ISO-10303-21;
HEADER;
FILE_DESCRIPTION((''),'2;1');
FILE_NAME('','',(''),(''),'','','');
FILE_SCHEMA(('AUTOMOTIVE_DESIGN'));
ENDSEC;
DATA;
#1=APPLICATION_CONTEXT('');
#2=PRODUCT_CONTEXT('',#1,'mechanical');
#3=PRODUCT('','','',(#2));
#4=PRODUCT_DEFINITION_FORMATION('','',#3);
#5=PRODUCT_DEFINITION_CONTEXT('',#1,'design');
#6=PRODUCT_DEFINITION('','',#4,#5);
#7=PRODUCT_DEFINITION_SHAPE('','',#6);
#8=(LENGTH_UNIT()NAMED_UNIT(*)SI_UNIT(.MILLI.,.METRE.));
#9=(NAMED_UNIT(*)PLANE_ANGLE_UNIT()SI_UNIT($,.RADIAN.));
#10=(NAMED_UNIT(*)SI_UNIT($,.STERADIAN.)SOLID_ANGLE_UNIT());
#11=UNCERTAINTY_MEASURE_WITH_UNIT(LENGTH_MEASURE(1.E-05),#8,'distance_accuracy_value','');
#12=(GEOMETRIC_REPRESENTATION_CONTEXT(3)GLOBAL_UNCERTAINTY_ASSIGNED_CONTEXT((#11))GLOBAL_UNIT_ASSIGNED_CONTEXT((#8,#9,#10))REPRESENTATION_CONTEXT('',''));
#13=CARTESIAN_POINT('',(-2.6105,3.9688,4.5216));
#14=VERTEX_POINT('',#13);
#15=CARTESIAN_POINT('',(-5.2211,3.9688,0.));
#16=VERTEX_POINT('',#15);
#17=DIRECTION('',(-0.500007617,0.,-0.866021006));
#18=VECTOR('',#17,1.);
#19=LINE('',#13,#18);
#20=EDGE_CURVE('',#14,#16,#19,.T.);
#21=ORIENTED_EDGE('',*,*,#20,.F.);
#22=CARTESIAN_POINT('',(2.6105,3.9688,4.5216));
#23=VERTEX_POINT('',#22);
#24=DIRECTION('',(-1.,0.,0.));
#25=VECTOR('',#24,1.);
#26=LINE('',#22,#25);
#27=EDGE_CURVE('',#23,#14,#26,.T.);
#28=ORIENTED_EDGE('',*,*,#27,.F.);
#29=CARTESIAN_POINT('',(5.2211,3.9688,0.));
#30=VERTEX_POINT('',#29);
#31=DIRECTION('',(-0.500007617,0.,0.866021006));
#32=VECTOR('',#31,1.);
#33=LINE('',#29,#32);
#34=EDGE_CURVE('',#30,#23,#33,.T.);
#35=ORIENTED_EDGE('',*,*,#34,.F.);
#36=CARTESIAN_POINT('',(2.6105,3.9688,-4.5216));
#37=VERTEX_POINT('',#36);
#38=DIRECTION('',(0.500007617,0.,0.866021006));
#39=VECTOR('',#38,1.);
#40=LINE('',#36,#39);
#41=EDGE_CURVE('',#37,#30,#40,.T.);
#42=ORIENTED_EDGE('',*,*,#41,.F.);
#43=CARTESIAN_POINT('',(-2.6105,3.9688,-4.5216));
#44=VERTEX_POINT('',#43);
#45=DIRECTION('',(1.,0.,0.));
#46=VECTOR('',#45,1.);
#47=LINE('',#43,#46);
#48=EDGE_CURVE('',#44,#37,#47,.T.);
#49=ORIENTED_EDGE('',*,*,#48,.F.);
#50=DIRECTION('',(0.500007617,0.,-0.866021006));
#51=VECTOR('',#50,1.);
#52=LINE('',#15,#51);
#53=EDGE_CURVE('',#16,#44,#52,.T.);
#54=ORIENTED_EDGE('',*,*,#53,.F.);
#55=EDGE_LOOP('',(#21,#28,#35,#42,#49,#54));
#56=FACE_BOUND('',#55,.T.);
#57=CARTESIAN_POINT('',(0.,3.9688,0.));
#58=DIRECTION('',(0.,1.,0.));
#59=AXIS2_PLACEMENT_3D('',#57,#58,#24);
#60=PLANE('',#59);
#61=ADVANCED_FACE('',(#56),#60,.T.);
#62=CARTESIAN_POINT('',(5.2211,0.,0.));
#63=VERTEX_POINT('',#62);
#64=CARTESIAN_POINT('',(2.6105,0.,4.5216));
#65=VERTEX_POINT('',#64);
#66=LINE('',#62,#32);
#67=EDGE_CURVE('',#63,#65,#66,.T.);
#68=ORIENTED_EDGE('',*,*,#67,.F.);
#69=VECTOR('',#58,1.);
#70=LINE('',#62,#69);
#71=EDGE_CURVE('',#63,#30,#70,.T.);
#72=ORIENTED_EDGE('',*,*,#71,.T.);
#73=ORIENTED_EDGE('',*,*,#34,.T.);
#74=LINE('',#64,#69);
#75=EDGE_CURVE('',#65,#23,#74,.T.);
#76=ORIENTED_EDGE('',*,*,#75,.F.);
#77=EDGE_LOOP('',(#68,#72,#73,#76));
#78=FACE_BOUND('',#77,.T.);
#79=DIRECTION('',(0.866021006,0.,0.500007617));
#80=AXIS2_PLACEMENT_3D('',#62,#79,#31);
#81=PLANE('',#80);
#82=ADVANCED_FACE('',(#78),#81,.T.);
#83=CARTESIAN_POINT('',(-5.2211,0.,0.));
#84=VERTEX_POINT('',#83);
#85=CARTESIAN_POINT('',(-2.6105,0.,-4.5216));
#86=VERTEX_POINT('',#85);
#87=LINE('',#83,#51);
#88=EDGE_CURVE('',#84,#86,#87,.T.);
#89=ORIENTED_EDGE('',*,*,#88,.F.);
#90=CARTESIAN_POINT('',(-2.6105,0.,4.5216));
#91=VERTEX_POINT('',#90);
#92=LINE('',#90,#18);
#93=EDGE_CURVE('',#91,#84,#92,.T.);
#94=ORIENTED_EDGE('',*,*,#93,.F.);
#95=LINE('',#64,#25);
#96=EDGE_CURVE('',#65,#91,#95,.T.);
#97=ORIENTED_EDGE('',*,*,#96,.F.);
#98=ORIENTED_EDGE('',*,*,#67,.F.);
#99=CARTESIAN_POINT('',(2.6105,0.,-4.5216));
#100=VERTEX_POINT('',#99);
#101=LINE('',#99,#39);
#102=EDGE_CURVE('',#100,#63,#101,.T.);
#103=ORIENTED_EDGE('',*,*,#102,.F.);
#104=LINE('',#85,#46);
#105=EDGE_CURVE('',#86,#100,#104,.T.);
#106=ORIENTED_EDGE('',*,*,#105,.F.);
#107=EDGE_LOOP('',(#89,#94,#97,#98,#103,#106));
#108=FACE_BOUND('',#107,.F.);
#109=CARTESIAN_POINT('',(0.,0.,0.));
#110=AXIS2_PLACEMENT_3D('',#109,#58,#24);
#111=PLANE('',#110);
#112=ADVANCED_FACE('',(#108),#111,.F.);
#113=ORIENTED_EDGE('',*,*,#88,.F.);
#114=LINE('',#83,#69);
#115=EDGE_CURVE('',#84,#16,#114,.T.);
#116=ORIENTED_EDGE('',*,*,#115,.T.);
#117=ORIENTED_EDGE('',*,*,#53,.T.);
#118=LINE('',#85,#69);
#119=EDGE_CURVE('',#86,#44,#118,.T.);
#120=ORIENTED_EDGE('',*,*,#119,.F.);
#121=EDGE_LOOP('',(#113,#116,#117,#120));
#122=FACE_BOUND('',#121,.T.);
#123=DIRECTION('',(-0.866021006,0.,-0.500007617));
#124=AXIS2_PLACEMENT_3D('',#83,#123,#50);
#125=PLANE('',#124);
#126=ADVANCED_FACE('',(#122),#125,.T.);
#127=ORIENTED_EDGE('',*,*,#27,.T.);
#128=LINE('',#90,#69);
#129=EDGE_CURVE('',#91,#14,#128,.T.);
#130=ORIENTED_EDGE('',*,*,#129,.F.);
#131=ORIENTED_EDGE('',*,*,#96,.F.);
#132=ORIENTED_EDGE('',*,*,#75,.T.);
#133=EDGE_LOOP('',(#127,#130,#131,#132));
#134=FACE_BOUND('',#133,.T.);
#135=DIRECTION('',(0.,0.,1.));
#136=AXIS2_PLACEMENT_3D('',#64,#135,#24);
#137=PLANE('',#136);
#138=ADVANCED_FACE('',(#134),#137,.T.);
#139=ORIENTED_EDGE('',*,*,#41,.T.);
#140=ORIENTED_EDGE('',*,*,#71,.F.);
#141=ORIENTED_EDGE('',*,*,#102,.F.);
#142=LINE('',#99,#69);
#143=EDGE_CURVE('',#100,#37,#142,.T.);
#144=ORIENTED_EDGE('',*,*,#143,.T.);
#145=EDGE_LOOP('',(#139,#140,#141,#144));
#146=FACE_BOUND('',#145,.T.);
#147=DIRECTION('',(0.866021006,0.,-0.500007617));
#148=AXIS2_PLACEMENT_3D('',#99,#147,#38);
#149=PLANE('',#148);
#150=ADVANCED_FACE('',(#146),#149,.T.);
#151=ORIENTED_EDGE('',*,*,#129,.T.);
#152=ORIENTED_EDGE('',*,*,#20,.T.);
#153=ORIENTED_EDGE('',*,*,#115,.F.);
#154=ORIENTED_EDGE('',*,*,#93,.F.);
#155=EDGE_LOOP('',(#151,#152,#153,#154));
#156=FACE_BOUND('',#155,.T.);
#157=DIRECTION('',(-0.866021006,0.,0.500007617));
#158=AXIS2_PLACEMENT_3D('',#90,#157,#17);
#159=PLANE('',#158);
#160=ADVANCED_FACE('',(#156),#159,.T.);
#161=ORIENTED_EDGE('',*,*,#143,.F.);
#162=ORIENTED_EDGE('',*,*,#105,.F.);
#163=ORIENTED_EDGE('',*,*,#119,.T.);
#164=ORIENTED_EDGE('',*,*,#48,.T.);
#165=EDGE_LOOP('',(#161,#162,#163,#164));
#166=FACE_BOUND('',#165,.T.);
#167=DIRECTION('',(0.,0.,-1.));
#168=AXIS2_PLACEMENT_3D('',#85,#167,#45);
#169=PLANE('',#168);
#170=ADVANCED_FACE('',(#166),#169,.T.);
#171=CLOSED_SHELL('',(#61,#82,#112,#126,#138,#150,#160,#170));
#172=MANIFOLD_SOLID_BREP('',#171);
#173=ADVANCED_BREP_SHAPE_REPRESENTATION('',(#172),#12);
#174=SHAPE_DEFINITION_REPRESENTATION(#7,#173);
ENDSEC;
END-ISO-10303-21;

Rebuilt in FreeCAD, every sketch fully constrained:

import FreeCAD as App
import Part
import Sketcher
Q = App.Units.Quantity


def add_polygon(sketch, points):
    """Adds a closed chain of lines whose ends are joined by coincident constraints."""
    first, n = sketch.GeometryCount, len(points)
    for a, b in zip(points, points[1:] + points[:1]):
        sketch.addGeometry(Part.LineSegment(App.Vector(*a, 0), App.Vector(*b, 0)), False)
    for i in range(n):
        sketch.addConstraint(Sketcher.Constraint("Coincident", first + i, 2, first + (i + 1) % n, 1))

doc = App.newDocument("Part")
params = doc.addObject("Spreadsheet::Sheet", "Params")
for row, (alias, value) in enumerate([
    ("pad1_length", "0.156252 in"),
], start=1):
    params.set(f"A{row}", alias)
    params.set(f"B{row}", "=" + value)
    params.setAlias(f"B{row}", alias)

body = doc.addObject("PartDesign::Body", "Body")

sketch1 = body.newObject("Sketcher::SketchObject", "Sketch")
sketch1.AttachmentSupport = (doc.getObject("XZ_Plane"), [""])
sketch1.MapMode = "FlatFace"
add_polygon(sketch1, [(-3, -5), (-5, 0), (-3, 5), (3, 5), (5, 0), (3, -5)])
sketch1.addConstraint([
    Sketcher.Constraint("Horizontal", 2),
    Sketcher.Constraint("Horizontal", 5),
    Sketcher.Constraint("Symmetric", 0, 2, 3, 2, -1, 1),
    Sketcher.Constraint("Symmetric", 1, 2, 4, 2, -1, 1),
    Sketcher.Constraint("PointOnObject", 0, 2, -1),
    Sketcher.Constraint("Parallel", 0, 3),
    Sketcher.Constraint("Vertical", 2, 2, 4, 2),
    Sketcher.Constraint("Angle", 0, Q("120.0005 deg")),
    Sketcher.Constraint("DistanceX", 2, 1, 2, 2, 5.221),
    Sketcher.Constraint("DistanceX", 0, 2, 3, 2, Q("0.4111 in")),
])
pad1 = body.newObject("PartDesign::Pad", "Pad")
pad1.Profile = sketch1
pad1.setExpression("Length", "Params.pad1_length")
pad1.Reversed = True

doc.recompute()
